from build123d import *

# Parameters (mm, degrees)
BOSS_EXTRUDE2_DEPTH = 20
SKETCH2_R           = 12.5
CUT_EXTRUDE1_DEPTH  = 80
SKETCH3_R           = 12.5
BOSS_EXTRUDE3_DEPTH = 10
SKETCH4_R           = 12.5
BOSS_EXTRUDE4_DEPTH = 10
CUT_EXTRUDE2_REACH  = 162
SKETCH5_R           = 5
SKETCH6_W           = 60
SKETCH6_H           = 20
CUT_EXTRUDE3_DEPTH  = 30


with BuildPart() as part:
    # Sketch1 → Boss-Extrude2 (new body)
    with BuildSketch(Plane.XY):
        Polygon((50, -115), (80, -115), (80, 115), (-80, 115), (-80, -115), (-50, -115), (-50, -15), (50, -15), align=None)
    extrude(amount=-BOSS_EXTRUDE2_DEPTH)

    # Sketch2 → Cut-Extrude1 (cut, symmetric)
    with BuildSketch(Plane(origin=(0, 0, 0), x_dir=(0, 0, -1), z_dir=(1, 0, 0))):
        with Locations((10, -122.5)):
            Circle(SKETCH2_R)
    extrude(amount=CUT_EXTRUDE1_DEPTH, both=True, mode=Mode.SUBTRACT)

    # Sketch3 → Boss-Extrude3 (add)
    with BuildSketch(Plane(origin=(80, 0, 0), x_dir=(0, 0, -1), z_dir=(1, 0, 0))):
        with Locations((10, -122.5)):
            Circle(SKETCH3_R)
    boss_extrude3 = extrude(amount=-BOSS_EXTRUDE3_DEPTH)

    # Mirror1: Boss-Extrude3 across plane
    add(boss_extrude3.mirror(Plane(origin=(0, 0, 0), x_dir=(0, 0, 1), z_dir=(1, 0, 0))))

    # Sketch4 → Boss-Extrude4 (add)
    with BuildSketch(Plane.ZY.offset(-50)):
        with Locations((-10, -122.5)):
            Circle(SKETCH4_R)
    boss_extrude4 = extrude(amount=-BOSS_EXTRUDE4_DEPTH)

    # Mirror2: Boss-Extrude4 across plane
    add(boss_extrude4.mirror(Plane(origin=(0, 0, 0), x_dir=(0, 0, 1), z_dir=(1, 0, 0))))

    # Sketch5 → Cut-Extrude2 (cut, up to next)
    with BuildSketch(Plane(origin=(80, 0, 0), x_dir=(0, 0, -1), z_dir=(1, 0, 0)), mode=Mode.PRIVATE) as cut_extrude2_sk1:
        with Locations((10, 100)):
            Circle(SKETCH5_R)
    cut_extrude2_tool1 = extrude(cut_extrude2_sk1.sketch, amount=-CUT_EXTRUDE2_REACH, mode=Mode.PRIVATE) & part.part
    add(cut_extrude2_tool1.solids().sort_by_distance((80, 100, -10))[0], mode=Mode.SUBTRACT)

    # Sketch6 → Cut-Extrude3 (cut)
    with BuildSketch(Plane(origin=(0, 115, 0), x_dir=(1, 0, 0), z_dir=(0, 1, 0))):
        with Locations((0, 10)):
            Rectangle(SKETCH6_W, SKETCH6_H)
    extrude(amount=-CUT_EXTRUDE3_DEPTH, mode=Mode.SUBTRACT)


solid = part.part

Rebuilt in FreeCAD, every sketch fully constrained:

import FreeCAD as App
import Part
import Sketcher
from FreeCAD import Vector

doc = App.newDocument("Part")
body = doc.addObject("PartDesign::Body", "Body")

sketch1 = body.newObject("Sketcher::SketchObject", "Sketch")
sketch1.AttachmentSupport = (doc.getObject("XY_Plane"), [""])
sketch1.MapMode = "FlatFace"
sketch1.addGeometry([
    Part.LineSegment(Vector(50, -115, 0), Vector(80, -115, 0)),
    Part.LineSegment(Vector(80, -115, 0), Vector(80, 115, 0)),
    Part.LineSegment(Vector(80, 115, 0), Vector(-80, 115, 0)),
    Part.LineSegment(Vector(-80, 115, 0), Vector(-80, -115, 0)),
    Part.LineSegment(Vector(-80, -115, 0), Vector(-50, -115, 0)),
    Part.LineSegment(Vector(-50, -115, 0), Vector(-50, -15, 0)),
    Part.LineSegment(Vector(-50, -15, 0), Vector(50, -15, 0)),
    Part.LineSegment(Vector(50, -15, 0), Vector(50, -115, 0)),
], False)
sketch1.addConstraint([
    Sketcher.Constraint("Coincident", 0, 2, 1, 1),
    Sketcher.Constraint("Coincident", 1, 2, 2, 1),
    Sketcher.Constraint("Coincident", 2, 2, 3, 1),
    Sketcher.Constraint("Coincident", 3, 2, 4, 1),
    Sketcher.Constraint("Coincident", 4, 2, 5, 1),
    Sketcher.Constraint("Coincident", 5, 2, 6, 1),
    Sketcher.Constraint("Coincident", 6, 2, 7, 1),
    Sketcher.Constraint("Coincident", 7, 2, 0, 1),
    Sketcher.Constraint("Horizontal", 0),
    Sketcher.Constraint("Vertical", 1),
    Sketcher.Constraint("Horizontal", 2),
    Sketcher.Constraint("Vertical", 3),
    Sketcher.Constraint("Horizontal", 4),
    Sketcher.Constraint("Vertical", 5),
    Sketcher.Constraint("Horizontal", 6),
    Sketcher.Constraint("Vertical", 7),
    Sketcher.Constraint("Symmetric", 0, 2, 2, 2, -1, 1),
    Sketcher.Constraint("Symmetric", 4, 2, 7, 2, -2),
    Sketcher.Constraint("Equal", 6, 5),
    Sketcher.Constraint("DistanceX", 0, 1, 0, 2, 30.0),
    Sketcher.Constraint("DistanceX", 2, 2, 2, 1, 160.0),
    Sketcher.Constraint("DistanceY", 1, 1, 1, 2, 230.0),
])
pad1 = body.newObject("PartDesign::Pad", "Pad")
pad1.Profile = sketch1
pad1.Length = 20
pad1.Reversed = True

sketch2 = body.newObject("Sketcher::SketchObject", "Sketch001")
sketch2.AttachmentSupport = (doc.getObject("YZ_Plane"), [""])
sketch2.MapMode = "FlatFace"
sketch2.addGeometry(Part.Circle(Vector(-122, -10, 0), Vector(0, 0, 1), 12), False)
sketch2.addConstraint([
    Sketcher.Constraint("Diameter", 0, 25.0),
    Sketcher.Constraint("DistanceY", 0, 3, -1, 1, 10.0),
    Sketcher.Constraint("DistanceX", 0, 3, -1, 1, 122.5),
])
pocket1 = body.newObject("PartDesign::Pocket", "Pocket")
pocket1.Profile = sketch2
pocket1.Length = 160
pocket1.Midplane = True

sketch3 = body.newObject("Sketcher::SketchObject", "Sketch002")
sketch3.AttachmentSupport = (doc.getObject("YZ_Plane"), [""])
sketch3.MapMode = "FlatFace"
sketch3.AttachmentOffset = App.Placement(Vector(0, 0, 80), App.Rotation())
sketch3.addGeometry(Part.Circle(Vector(-122, -10, 0), Vector(0, 0, 1), 12), False)
sketch3.addConstraint([
    Sketcher.Constraint("Diameter", 0, 25.0),
    Sketcher.Constraint("DistanceY", 0, 3, -1, 1, 10.0),
    Sketcher.Constraint("DistanceX", 0, 3, -1, 1, 122.5),
])
pad2 = body.newObject("PartDesign::Pad", "Pad001")
pad2.Profile = sketch3
pad2.Length = 10
pad2.Reversed = True
doc.recompute()

mirrored = body.newObject("PartDesign::Mirrored", "Mirrored")
mirrored.Originals = [pad2]
mirrored.MirrorPlane = (doc.getObject("YZ_Plane"), [""])
body.Tip = mirrored

sketch4 = body.newObject("Sketcher::SketchObject", "Sketch003")
sketch4.AttachmentSupport = (doc.getObject("YZ_Plane"), [""])
sketch4.MapMode = "FlatFace"
sketch4.AttachmentOffset = App.Placement(Vector(0, 0, 50), App.Rotation())
sketch4.addGeometry(Part.Circle(Vector(-122, -10, 0), Vector(0, 0, 1), 12), False)
sketch4.addConstraint([
    Sketcher.Constraint("Diameter", 0, 25.0),
    Sketcher.Constraint("DistanceY", 0, 3, -1, 1, 10.0),
    Sketcher.Constraint("DistanceX", 0, 3, -1, 1, 122.5),
])
pad3 = body.newObject("PartDesign::Pad", "Pad002")
pad3.Profile = sketch4
pad3.Length = 10
doc.recompute()

mirrored2 = body.newObject("PartDesign::Mirrored", "Mirrored001")
mirrored2.Originals = [pad3]
mirrored2.MirrorPlane = (doc.getObject("YZ_Plane"), [""])
body.Tip = mirrored2

sketch5 = body.newObject("Sketcher::SketchObject", "Sketch004")
sketch5.AttachmentSupport = (doc.getObject("YZ_Plane"), [""])
sketch5.MapMode = "FlatFace"
sketch5.AttachmentOffset = App.Placement(Vector(0, 0, 80), App.Rotation())
sketch5.addGeometry(Part.Circle(Vector(100, -10, 0), Vector(0, 0, 1), 5), False)
sketch5.addConstraint([
    Sketcher.Constraint("Diameter", 0, 10.0),
    Sketcher.Constraint("DistanceX", -1, 1, 0, 3, 100.0),
    Sketcher.Constraint("DistanceY", 0, 3, -1, 1, 10.0),
])
pocket2 = body.newObject("PartDesign::Pocket", "Pocket001")
pocket2.Profile = sketch5
pocket2.Type = "UpToFirst"

sketch6 = body.newObject("Sketcher::SketchObject", "Sketch005")
sketch6.AttachmentSupport = (doc.getObject("XZ_Plane"), [""])
sketch6.MapMode = "FlatFace"
sketch6.AttachmentOffset = App.Placement(Vector(0, 0, -115), App.Rotation())
sketch6.addGeometry([
    Part.LineSegment(Vector(-30, -20, 0), Vector(-30, 0, 0)),
    Part.LineSegment(Vector(-30, 0, 0), Vector(30, 0, 0)),
    Part.LineSegment(Vector(30, 0, 0), Vector(30, -20, 0)),
    Part.LineSegment(Vector(30, -20, 0), Vector(-30, -20, 0)),
], False)
sketch6.addConstraint([
    Sketcher.Constraint("Coincident", 0, 2, 1, 1),
    Sketcher.Constraint("Coincident", 1, 2, 2, 1),
    Sketcher.Constraint("Coincident", 2, 2, 3, 1),
    Sketcher.Constraint("Coincident", 3, 2, 0, 1),
    Sketcher.Constraint("Vertical", 0),
    Sketcher.Constraint("Horizontal", 1),
    Sketcher.Constraint("Vertical", 2),
    Sketcher.Constraint("Horizontal", 3),
    Sketcher.Constraint("Symmetric", 0, 2, 1, 2, -1, 1),
    Sketcher.Constraint("DistanceX", 1, 1, 1, 2, 60.0),
    Sketcher.Constraint("DistanceY", 0, 1, 0, 2, 20.0),
])
pocket3 = body.newObject("PartDesign::Pocket", "Pocket002")
pocket3.Profile = sketch6
pocket3.Length = 30
pocket3.Reversed = True

doc.recompute()
